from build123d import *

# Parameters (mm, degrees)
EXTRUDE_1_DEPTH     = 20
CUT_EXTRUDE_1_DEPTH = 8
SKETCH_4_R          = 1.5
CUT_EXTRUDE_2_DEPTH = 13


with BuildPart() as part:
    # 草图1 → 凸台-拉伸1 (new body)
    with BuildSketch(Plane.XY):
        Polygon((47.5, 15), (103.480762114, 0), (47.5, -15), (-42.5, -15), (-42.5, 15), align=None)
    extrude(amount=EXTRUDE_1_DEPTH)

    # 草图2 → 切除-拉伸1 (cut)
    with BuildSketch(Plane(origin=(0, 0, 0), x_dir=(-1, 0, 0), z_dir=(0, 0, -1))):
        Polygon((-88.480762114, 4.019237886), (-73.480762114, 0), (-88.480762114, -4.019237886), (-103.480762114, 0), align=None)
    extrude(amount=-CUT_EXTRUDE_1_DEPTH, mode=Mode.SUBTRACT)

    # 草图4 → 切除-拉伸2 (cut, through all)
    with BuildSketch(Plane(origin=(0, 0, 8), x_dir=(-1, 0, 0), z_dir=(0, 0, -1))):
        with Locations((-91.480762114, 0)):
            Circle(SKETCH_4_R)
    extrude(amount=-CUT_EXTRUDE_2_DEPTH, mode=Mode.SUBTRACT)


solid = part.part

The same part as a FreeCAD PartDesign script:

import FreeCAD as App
import Part
import Sketcher

V = App.Vector
Q = App.Units.Quantity


def add_polygon(sketch, points):
    """Adds a closed chain of lines whose ends are joined by coincident constraints."""
    first, n = sketch.GeometryCount, len(points)
    for a, b in zip(points, points[1:] + points[:1]):
        sketch.addGeometry(Part.LineSegment(App.Vector(*a, 0), App.Vector(*b, 0)), False)
    for i in range(n):
        sketch.addConstraint(Sketcher.Constraint("Coincident", first + i, 2, first + (i + 1) % n, 1))

doc = App.newDocument("Part")
body = doc.addObject("PartDesign::Body", "Body")

sketch1 = doc.addObject("Sketcher::SketchObject", "Sketch")
body.addObject(sketch1)
sketch1.AttachmentSupport = (doc.XY_Plane, [""])
sketch1.MapMode = "FlatFace"
add_polygon(sketch1, [(103, 0), (48, 15), (-42, 15), (-42, -15), (48, -15)])
sketch1.addConstraint(Sketcher.Constraint("Horizontal", 1))
sketch1.addConstraint(Sketcher.Constraint("Vertical", 2))
sketch1.addConstraint(Sketcher.Constraint("Horizontal", 3))
sketch1.addConstraint(Sketcher.Constraint("Symmetric", 0, 2, 3, 2, -1))
sketch1.addConstraint(Sketcher.Constraint("PointOnObject", 4, 2, -1))
sketch1.addConstraint(Sketcher.Constraint("DistanceX", 1, 2, 1, 1, 90.0))
sketch1.addConstraint(Sketcher.Constraint("DistanceY", 2, 2, 2, 1, 30.0))
sketch1.addConstraint(Sketcher.Constraint("Angle", 0, Q("165 deg")))
sketch1.addConstraint(Sketcher.Constraint("DistanceX", -1, 1, 0, 2, 47.5))
pad1 = doc.addObject("PartDesign::Pad", "Pad")
body.addObject(pad1)
pad1.Profile = sketch1
pad1.Length = 20

sketch2 = doc.addObject("Sketcher::SketchObject", "Sketch001")
body.addObject(sketch2)
sketch2.AttachmentSupport = (doc.XY_Plane, [""])
sketch2.MapMode = "FlatFace"
add_polygon(sketch2, [(73, 0), (88, 4), (103, 0), (88, -4)])
sketch2.addConstraint(Sketcher.Constraint("Symmetric", 0, 2, 2, 2, -1))
sketch2.addConstraint(Sketcher.Constraint("PointOnObject", 1, 2, -1))
sketch2.addConstraint(Sketcher.Constraint("PointOnObject", 3, 2, -1))
sketch2.addConstraint(Sketcher.Constraint("Parallel", 0, 2))
sketch2.addConstraint(Sketcher.Constraint("Angle", 0, Q("15 deg")))
sketch2.addConstraint(Sketcher.Constraint("DistanceX", 0, 2, 1, 2, 15.0))
sketch2.addConstraint(Sketcher.Constraint("DistanceX", -1, 1, 0, 2, 88.480762))
pocket1 = doc.addObject("PartDesign::Pocket", "Pocket")
body.addObject(pocket1)
pocket1.Profile = sketch2
pocket1.Length = 8
pocket1.Reversed = True

sketch3 = doc.addObject("Sketcher::SketchObject", "Sketch002")
body.addObject(sketch3)
sketch3.AttachmentSupport = (doc.XY_Plane, [""])
sketch3.MapMode = "FlatFace"
sketch3.AttachmentOffset = App.Placement(V(0, 0, 8), App.Rotation())
sketch3.addGeometry(Part.Circle(V(91.5, 0, 0), V(0, 0, 1), 1.5), False)
sketch3.addConstraint(Sketcher.Constraint("PointOnObject", 0, 3, -1))
sketch3.addConstraint(Sketcher.Constraint("Diameter", 0, 3.0))
sketch3.addConstraint(Sketcher.Constraint("DistanceX", -1, 1, 0, 3, 91.480762))
pocket2 = doc.addObject("PartDesign::Pocket", "Pocket001")
body.addObject(pocket2)
pocket2.Profile = sketch3
pocket2.Type = "ThroughAll"
pocket2.Reversed = True

doc.recompute()
